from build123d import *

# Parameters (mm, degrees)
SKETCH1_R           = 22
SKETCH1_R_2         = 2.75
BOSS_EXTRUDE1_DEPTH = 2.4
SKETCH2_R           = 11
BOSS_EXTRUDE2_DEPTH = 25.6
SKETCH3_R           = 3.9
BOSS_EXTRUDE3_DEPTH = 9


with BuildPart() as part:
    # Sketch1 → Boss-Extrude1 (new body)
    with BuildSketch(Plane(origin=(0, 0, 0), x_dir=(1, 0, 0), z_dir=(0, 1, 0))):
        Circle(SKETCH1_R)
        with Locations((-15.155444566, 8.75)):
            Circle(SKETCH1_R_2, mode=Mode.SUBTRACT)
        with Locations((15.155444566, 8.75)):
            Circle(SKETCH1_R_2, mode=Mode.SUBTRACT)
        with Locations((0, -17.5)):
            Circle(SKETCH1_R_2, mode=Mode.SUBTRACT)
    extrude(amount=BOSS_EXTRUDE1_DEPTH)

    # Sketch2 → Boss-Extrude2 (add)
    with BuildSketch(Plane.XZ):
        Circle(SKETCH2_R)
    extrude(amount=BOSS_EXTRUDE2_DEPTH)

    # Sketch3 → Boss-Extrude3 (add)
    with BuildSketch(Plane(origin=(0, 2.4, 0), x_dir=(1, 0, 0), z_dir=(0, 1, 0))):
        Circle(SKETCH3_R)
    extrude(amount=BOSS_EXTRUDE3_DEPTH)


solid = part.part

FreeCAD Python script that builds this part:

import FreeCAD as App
import Part
import Sketcher
Q = App.Units.Quantity

doc = App.newDocument("Part")
body = doc.addObject("PartDesign::Body", "Body")

sketch1 = body.newObject("Sketcher::SketchObject", "Sketch")
sketch1.AttachmentSupport = (doc.getObject("XZ_Plane"), [""])
sketch1.MapMode = "FlatFace"
sketch1.addGeometry(Part.Circle(App.Vector(0, 0, 0), App.Vector(0, 0, 1), 22), False)
sketch1.addGeometry(Part.Circle(App.Vector(0, 17.5, 0), App.Vector(0, 0, 1), 2.8), False)
sketch1.addGeometry(Part.Circle(App.Vector(-15.2, -8.8, 0), App.Vector(0, 0, 1), 2.8), False)
sketch1.addGeometry(Part.Circle(App.Vector(15.2, -8.8, 0), App.Vector(0, 0, 1), 2.8), False)
sketch1.addConstraint(Sketcher.Constraint("Coincident", 0, 3, -1, 1))
sketch1.addConstraint(Sketcher.Constraint("Equal", 1, 2))
sketch1.addConstraint(Sketcher.Constraint("Equal", 2, 3))
sketch1.addConstraint(Sketcher.Constraint("Symmetric", 2, 3, 3, 3, -2))
sketch1.addConstraint(Sketcher.Constraint("PointOnObject", 1, 3, -2))
sketch1.addConstraint(Sketcher.Constraint("Diameter", 0, Q("44 mm")))
sketch1.addConstraint(Sketcher.Constraint("Diameter", 1, Q("5.5 mm")))
sketch1.addConstraint(Sketcher.Constraint("DistanceY", -1, 1, 1, 3, Q("17.5 mm")))
sketch1.addConstraint(Sketcher.Constraint("DistanceY", 2, 3, -1, 1, Q("8.75 mm")))
sketch1.addConstraint(Sketcher.Constraint("DistanceX", 2, 3, 3, 3, Q("30.310889 mm")))
pad1 = body.newObject("PartDesign::Pad", "Pad")
pad1.Profile = sketch1
pad1.Length = 2.4
pad1.Reversed = True

sketch2 = body.newObject("Sketcher::SketchObject", "Sketch001")
sketch2.AttachmentSupport = (doc.getObject("XZ_Plane"), [""])
sketch2.MapMode = "FlatFace"
sketch2.addGeometry(Part.Circle(App.Vector(0, 0, 0), App.Vector(0, 0, 1), 11), False)
sketch2.addConstraint(Sketcher.Constraint("Coincident", 0, 3, -1, 1))
sketch2.addConstraint(Sketcher.Constraint("Diameter", 0, Q("22 mm")))
pad2 = body.newObject("PartDesign::Pad", "Pad001")
pad2.Profile = sketch2
pad2.Length = 25.6

sketch3 = body.newObject("Sketcher::SketchObject", "Sketch002")
sketch3.AttachmentSupport = (doc.getObject("XZ_Plane"), [""])
sketch3.MapMode = "FlatFace"
sketch3.AttachmentOffset = App.Placement(App.Vector(0, 0, -2.4), App.Rotation())
sketch3.addGeometry(Part.Circle(App.Vector(0, 0, 0), App.Vector(0, 0, 1), 3.9), False)
sketch3.addConstraint(Sketcher.Constraint("Coincident", 0, 3, -1, 1))
sketch3.addConstraint(Sketcher.Constraint("Diameter", 0, Q("7.8 mm")))
pad3 = body.newObject("PartDesign::Pad", "Pad002")
pad3.Profile = sketch3
pad3.Length = 9
pad3.Reversed = True

doc.recompute()
